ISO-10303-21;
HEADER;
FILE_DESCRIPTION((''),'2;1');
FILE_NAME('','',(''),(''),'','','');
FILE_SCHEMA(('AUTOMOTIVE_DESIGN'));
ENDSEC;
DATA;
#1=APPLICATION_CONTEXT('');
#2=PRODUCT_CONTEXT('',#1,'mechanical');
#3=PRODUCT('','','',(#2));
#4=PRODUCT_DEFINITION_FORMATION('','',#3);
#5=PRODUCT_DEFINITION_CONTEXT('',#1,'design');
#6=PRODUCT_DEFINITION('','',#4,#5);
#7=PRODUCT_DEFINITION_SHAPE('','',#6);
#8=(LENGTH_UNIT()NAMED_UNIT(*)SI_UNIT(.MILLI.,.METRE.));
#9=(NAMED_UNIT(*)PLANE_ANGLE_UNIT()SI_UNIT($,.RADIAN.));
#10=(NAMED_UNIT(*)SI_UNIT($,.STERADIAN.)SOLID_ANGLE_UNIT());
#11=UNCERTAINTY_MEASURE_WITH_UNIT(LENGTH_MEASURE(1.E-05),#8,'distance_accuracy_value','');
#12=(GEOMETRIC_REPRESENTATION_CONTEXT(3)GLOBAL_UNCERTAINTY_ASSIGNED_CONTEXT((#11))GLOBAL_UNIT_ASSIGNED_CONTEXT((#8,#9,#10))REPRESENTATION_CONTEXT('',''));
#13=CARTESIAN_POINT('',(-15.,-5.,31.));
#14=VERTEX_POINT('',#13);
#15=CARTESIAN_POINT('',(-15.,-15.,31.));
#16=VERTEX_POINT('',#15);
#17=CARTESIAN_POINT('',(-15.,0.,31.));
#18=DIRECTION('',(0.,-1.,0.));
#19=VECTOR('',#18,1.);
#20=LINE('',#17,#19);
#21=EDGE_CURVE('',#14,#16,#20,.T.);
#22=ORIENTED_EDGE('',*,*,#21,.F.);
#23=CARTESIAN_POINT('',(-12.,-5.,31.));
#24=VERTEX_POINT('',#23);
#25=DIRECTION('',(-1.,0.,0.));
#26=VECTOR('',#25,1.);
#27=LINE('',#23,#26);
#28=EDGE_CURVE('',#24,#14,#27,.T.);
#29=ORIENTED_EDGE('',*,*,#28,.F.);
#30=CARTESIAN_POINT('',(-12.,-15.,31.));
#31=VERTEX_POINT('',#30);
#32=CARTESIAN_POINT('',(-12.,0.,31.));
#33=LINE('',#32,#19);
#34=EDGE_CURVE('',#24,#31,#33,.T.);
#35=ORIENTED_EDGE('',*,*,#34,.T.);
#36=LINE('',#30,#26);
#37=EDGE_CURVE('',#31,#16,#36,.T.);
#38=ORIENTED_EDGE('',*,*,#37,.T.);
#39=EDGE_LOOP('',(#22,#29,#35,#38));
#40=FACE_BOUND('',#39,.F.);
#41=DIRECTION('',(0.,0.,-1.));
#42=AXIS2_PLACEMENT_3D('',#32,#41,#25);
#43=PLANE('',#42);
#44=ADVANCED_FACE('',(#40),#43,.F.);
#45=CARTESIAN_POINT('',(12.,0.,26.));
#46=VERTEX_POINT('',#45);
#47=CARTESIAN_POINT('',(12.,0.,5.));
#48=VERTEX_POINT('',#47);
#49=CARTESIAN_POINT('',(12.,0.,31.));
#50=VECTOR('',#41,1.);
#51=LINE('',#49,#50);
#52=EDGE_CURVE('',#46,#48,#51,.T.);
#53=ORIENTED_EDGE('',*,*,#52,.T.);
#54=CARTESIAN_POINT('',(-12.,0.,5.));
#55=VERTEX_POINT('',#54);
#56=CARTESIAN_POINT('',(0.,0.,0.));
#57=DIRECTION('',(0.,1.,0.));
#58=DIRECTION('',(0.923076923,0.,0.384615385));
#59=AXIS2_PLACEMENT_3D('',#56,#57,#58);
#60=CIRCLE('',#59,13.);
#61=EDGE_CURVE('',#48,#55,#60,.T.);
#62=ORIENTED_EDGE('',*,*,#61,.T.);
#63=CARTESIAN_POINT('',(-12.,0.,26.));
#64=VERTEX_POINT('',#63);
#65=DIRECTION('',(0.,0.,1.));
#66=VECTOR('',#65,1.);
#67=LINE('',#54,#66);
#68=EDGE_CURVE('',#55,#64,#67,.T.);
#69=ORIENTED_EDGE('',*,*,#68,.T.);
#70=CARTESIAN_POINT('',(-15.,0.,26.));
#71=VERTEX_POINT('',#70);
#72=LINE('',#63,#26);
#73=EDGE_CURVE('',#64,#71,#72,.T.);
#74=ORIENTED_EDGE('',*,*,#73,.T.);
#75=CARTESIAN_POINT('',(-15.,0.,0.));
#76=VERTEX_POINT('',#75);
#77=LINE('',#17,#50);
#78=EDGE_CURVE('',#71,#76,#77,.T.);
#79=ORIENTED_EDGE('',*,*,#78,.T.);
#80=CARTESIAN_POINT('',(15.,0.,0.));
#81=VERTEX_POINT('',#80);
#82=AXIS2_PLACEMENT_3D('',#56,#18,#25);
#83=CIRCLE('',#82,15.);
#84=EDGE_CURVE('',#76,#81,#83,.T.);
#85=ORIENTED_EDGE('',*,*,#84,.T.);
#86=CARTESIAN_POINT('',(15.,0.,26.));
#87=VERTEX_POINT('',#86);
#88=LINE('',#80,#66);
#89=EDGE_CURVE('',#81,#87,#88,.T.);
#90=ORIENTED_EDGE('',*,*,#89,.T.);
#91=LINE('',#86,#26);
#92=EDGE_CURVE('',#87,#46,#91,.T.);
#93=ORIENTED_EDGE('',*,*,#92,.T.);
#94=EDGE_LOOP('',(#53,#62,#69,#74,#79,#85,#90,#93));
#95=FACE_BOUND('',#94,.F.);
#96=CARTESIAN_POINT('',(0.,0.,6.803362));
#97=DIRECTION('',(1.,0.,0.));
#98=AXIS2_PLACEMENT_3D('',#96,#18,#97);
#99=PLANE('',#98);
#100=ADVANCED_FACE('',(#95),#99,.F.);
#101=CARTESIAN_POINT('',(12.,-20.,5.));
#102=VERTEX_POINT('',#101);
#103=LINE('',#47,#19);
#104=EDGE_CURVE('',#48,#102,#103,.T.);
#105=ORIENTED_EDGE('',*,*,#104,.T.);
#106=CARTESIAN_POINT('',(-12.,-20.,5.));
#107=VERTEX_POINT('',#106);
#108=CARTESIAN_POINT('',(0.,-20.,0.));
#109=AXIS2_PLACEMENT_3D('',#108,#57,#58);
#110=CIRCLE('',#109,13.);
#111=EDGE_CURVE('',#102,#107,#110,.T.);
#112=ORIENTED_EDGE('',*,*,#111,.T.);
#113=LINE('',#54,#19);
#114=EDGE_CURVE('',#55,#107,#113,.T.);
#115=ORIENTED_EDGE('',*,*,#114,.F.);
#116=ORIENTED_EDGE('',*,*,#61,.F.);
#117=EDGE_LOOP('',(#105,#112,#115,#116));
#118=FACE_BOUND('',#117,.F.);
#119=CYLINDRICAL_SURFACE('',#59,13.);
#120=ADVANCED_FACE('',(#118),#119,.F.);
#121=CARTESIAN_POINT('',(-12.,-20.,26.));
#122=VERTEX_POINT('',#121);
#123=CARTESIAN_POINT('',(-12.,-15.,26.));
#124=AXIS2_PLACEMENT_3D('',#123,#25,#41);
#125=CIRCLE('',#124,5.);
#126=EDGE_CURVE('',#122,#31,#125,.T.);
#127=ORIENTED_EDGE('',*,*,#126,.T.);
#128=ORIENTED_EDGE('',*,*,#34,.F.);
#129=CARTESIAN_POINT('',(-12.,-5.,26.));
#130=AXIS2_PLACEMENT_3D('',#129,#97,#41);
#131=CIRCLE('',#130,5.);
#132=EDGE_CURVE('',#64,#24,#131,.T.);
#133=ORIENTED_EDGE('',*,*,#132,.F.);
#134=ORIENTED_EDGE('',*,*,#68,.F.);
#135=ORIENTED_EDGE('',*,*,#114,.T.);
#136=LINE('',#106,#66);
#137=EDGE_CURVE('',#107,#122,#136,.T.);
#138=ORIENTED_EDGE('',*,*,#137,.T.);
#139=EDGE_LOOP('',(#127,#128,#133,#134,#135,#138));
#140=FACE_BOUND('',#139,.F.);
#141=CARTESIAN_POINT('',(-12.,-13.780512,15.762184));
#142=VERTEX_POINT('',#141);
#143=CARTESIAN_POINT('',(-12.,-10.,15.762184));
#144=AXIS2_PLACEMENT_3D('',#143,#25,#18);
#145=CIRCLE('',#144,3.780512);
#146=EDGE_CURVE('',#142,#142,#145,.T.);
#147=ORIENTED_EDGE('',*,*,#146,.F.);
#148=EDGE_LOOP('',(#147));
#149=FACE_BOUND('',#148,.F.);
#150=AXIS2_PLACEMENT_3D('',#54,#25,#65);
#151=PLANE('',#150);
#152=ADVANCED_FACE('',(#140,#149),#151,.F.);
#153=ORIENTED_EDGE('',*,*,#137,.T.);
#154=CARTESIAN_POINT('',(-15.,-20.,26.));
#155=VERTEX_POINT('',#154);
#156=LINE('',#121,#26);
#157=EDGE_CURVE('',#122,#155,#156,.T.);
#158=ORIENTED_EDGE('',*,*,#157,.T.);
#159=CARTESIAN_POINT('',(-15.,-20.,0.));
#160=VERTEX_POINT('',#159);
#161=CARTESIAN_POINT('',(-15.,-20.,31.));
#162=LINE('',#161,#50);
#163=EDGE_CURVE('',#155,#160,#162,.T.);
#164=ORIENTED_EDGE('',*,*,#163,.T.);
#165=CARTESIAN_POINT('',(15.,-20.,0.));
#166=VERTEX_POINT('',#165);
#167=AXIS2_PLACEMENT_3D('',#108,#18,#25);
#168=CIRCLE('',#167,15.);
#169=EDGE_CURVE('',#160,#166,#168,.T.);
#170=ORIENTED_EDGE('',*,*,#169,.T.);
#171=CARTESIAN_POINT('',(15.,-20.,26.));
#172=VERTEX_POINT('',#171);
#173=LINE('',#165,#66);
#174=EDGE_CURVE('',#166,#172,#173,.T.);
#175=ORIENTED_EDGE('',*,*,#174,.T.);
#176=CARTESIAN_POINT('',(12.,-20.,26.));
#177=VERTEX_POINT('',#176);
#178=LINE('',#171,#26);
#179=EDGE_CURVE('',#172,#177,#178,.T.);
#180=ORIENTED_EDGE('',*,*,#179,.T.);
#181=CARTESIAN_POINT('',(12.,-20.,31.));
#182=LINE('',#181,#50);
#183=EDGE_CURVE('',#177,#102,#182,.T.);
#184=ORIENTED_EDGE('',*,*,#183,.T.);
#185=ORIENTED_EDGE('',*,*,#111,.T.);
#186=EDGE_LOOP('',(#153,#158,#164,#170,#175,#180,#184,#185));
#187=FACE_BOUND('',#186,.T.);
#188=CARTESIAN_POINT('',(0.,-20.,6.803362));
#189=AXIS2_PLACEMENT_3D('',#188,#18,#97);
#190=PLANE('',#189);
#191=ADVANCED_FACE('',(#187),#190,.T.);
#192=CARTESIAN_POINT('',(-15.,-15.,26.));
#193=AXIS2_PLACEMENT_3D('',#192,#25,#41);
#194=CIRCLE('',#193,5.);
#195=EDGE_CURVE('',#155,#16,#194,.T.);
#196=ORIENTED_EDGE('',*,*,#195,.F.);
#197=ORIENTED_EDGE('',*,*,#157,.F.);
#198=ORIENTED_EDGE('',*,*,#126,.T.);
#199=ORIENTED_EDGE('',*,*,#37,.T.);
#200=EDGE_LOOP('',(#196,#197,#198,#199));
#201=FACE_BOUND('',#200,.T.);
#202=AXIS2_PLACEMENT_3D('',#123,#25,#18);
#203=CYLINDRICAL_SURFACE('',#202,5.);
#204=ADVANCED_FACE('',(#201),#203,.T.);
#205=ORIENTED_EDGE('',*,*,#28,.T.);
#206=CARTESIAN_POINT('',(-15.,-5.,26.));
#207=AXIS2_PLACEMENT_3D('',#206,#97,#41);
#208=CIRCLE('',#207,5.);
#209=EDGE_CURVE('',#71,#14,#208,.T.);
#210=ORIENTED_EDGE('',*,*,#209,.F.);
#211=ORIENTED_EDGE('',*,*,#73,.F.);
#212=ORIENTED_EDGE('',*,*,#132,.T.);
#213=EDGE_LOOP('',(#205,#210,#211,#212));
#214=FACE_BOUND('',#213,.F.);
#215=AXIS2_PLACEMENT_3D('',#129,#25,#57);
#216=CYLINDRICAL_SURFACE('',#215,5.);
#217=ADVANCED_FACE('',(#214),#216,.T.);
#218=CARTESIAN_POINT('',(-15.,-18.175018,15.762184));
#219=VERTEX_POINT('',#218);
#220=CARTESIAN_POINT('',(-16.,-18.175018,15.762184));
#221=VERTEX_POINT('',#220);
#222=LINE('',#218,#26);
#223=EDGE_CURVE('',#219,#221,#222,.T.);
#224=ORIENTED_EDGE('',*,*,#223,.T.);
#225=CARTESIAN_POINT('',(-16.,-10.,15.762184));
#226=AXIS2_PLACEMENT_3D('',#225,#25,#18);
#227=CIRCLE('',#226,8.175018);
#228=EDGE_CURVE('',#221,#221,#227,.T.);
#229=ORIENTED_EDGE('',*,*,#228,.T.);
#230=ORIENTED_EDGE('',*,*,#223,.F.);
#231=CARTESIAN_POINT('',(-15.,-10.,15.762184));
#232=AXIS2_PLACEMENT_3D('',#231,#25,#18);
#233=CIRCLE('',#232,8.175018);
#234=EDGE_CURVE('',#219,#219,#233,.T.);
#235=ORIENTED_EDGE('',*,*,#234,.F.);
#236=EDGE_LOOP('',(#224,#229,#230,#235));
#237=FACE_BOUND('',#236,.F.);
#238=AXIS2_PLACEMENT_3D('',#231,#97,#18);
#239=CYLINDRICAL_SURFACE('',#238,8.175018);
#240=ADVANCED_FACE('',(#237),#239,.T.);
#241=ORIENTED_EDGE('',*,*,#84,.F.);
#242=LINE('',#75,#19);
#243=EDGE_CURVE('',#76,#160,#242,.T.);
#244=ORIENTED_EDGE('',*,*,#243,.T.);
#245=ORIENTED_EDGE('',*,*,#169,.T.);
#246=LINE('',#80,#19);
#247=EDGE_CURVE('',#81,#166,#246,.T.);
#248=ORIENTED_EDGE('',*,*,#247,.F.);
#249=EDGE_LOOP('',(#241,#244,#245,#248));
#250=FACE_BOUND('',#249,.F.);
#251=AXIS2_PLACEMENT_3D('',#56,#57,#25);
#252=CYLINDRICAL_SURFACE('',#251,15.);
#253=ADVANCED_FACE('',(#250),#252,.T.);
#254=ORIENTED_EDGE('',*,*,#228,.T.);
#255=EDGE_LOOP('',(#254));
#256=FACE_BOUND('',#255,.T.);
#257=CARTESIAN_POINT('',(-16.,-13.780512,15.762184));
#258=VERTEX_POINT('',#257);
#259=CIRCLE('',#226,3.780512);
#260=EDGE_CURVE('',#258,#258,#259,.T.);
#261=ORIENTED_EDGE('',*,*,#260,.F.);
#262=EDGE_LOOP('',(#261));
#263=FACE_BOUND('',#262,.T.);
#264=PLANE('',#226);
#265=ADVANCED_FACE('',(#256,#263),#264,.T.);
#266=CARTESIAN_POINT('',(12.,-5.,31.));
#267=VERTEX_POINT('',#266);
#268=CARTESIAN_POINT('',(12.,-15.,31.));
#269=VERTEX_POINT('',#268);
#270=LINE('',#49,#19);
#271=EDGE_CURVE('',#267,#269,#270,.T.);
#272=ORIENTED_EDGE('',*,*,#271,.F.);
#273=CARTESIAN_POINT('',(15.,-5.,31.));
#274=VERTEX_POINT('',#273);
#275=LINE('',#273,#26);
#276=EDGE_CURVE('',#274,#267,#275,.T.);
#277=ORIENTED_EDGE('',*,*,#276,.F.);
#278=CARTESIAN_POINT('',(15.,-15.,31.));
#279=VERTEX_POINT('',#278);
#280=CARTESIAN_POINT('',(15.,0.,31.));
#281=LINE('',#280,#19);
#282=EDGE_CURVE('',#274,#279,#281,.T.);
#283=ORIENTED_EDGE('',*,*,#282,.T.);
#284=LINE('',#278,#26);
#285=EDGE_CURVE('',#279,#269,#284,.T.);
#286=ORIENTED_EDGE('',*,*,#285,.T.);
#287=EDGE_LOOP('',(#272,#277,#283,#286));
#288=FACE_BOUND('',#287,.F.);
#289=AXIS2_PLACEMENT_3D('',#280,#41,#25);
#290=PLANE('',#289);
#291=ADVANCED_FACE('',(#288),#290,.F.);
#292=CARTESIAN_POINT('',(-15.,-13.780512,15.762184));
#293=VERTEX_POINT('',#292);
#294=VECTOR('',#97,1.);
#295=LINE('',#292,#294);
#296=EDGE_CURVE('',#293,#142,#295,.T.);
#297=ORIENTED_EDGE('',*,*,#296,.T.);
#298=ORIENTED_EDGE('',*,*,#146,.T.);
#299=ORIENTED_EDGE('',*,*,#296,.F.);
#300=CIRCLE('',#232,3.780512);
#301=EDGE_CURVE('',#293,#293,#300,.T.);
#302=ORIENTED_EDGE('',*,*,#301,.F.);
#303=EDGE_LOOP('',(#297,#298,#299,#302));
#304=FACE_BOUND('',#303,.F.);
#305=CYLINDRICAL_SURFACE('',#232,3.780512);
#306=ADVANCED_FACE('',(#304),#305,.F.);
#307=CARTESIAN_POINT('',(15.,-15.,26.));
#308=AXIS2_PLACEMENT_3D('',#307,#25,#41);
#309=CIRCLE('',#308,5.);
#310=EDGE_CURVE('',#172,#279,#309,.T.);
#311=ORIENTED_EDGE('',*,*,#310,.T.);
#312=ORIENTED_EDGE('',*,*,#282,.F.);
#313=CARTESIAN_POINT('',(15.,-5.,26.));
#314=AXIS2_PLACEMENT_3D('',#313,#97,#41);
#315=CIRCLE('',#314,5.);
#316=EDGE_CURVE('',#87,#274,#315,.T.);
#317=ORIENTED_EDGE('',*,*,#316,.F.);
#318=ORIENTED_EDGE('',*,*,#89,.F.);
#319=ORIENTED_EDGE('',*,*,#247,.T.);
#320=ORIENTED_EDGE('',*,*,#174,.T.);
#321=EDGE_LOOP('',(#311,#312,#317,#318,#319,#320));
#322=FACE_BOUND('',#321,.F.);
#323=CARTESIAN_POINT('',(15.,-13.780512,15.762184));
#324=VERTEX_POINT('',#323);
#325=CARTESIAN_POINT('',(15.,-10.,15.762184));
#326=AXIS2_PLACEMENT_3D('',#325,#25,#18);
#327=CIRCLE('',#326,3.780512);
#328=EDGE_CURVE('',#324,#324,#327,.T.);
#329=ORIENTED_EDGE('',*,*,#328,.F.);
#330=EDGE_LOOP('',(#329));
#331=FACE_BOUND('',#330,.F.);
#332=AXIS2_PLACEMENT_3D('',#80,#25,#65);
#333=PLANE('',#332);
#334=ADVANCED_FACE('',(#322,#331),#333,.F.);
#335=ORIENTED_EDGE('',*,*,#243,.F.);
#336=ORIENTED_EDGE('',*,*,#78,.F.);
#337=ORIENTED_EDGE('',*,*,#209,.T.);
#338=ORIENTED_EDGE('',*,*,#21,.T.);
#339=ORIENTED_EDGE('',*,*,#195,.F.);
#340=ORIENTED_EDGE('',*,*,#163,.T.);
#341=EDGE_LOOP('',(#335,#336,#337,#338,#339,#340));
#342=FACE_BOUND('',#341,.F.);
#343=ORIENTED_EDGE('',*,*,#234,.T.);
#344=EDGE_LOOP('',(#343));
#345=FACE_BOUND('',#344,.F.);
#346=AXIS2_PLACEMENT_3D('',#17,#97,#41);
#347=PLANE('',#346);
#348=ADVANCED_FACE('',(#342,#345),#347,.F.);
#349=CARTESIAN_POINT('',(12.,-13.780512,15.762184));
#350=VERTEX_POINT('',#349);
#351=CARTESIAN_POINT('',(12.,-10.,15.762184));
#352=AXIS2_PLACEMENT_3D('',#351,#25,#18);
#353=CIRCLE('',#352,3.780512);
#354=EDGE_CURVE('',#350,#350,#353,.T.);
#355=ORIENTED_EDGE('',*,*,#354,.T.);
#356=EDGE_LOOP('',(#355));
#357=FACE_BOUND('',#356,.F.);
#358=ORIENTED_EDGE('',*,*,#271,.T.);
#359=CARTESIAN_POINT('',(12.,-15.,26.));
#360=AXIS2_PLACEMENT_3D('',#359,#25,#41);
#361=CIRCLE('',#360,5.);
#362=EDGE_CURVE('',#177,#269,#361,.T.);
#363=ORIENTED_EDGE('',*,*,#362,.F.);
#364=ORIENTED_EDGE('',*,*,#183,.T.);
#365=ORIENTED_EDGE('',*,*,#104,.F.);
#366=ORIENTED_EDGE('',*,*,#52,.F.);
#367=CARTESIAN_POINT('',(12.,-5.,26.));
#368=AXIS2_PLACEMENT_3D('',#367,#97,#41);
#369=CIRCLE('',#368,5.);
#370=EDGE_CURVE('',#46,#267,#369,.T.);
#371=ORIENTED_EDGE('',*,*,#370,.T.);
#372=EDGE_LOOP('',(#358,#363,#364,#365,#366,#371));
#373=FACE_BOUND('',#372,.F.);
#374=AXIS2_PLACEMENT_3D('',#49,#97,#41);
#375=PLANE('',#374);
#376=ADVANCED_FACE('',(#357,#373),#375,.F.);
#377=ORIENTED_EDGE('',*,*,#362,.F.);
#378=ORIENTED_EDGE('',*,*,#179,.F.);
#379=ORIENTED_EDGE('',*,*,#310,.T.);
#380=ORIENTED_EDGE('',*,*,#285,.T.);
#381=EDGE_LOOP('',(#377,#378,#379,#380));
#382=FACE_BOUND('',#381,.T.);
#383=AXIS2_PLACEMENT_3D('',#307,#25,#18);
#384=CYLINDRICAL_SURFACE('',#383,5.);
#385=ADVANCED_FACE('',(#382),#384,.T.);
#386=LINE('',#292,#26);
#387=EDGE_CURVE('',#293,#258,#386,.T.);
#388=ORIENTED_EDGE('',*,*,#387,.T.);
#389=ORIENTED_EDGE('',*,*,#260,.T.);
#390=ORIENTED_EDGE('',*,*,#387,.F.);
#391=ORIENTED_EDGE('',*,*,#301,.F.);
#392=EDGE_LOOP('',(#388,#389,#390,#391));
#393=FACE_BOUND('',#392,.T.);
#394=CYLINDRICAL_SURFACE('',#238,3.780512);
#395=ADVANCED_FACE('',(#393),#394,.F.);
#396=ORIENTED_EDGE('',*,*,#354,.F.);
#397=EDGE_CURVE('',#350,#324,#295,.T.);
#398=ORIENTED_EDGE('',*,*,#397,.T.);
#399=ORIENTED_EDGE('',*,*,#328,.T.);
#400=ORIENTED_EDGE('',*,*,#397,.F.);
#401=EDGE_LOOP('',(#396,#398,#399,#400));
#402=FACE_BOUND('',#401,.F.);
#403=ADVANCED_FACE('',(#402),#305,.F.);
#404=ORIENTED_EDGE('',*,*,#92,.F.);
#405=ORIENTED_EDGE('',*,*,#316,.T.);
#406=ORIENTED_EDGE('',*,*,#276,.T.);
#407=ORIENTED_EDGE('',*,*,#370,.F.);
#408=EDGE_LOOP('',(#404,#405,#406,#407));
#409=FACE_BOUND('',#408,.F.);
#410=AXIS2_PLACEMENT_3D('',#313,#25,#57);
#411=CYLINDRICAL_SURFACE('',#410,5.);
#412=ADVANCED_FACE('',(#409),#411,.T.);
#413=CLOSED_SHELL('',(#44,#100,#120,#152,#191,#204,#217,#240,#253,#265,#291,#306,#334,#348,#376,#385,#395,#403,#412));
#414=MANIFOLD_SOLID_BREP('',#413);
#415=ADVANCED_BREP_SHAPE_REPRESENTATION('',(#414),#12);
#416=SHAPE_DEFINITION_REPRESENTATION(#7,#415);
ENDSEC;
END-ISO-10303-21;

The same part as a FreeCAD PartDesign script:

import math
import FreeCAD as App
import Part
import Sketcher

V = App.Vector


def edges_at(feature, points):
    """Names of the edges that pass closest to the given points."""
    edges = feature.Shape.Edges
    near = lambda p: min(range(len(edges)), key=lambda i: edges[i].distToShape(Part.Vertex(*p))[0])
    return sorted({f"Edge{near(p) + 1}" for p in points})

doc = App.newDocument("Part")
body = doc.addObject("PartDesign::Body", "Body")

# Sketch on XZ plane
sketch1 = body.newObject("Sketcher::SketchObject", "Sketch")
sketch1.AttachmentSupport = (doc.getObject("XZ_Plane"), [""])
sketch1.MapMode = "FlatFace"
sketch1.addGeometry(Part.ArcOfCircle(Part.Circle(V(0, 0, 0), V(0, 0, 1), 13), math.radians(157.380135), math.radians(382.619865)), False)
sketch1.addGeometry(Part.LineSegment(V(-12, 5, 0), V(-12, 31, 0)), False)
sketch1.addGeometry(Part.LineSegment(V(-12, 31, 0), V(-15, 31, 0)), False)
sketch1.addGeometry(Part.LineSegment(V(-15, 31, 0), V(-15, 0, 0)), False)
sketch1.addGeometry(Part.ArcOfCircle(Part.Circle(V(0, 0, 0), V(0, 0, 1), 15), math.radians(180), math.radians(360)), False)
sketch1.addGeometry(Part.LineSegment(V(15, 0, 0), V(15, 31, 0)), False)
sketch1.addGeometry(Part.LineSegment(V(15, 31, 0), V(12, 31, 0)), False)
sketch1.addGeometry(Part.LineSegment(V(12, 31, 0), V(12, 5, 0)), False)
sketch1.addConstraint(Sketcher.Constraint("Coincident", 0, 1, 1, 1))
sketch1.addConstraint(Sketcher.Constraint("Coincident", 1, 2, 2, 1))
sketch1.addConstraint(Sketcher.Constraint("Coincident", 2, 2, 3, 1))
sketch1.addConstraint(Sketcher.Constraint("Tangent", 3, 2, 4, 1))
sketch1.addConstraint(Sketcher.Constraint("Tangent", 4, 2, 5, 1))
sketch1.addConstraint(Sketcher.Constraint("Coincident", 5, 2, 6, 1))
sketch1.addConstraint(Sketcher.Constraint("Coincident", 6, 2, 7, 1))
sketch1.addConstraint(Sketcher.Constraint("Coincident", 7, 2, 0, 2))
sketch1.addConstraint(Sketcher.Constraint("Vertical", 1))
sketch1.addConstraint(Sketcher.Constraint("Horizontal", 2))
sketch1.addConstraint(Sketcher.Constraint("Vertical", 3))
sketch1.addConstraint(Sketcher.Constraint("Vertical", 5))
sketch1.addConstraint(Sketcher.Constraint("Horizontal", 6))
sketch1.addConstraint(Sketcher.Constraint("Vertical", 7))
sketch1.addConstraint(Sketcher.Constraint("Coincident", 0, 3, -1, 1))
sketch1.addConstraint(Sketcher.Constraint("Coincident", 4, 3, -1, 1))
sketch1.addConstraint(Sketcher.Constraint("Symmetric", 1, 2, 6, 2, -2))
sketch1.addConstraint(Sketcher.Constraint("Radius", 0, 13.0))
sketch1.addConstraint(Sketcher.Constraint("Radius", 4, 15.0))
sketch1.addConstraint(Sketcher.Constraint("DistanceX", 2, 2, 2, 1, 3.0))
sketch1.addConstraint(Sketcher.Constraint("DistanceY", 1, 1, 1, 2, 26.0))
pad1 = body.newObject("PartDesign::Pad", "Pad")
pad1.Profile = sketch1
pad1.Length = 20

# Sketch on YZ plane
sketch2 = body.newObject("Sketcher::SketchObject", "Sketch001")
sketch2.AttachmentSupport = (doc.getObject("YZ_Plane"), [""])
sketch2.MapMode = "FlatFace"
sketch2.AttachmentOffset = App.Placement(V(0, 0, -15), App.Rotation())
sketch2.addGeometry(Part.Circle(V(-10, 15.762184, 0), V(0, 0, 1), 8.175018), False)
sketch2.addGeometry(Part.Circle(V(-10, 15.762184, 0), V(0, 0, 1), 3.780512), False)
sketch2.addConstraint(Sketcher.Constraint("Coincident", 1, 3, 0, 3))
sketch2.addConstraint(Sketcher.Constraint("DistanceX", 0, 3, -1, 1, 10.0))
sketch2.addConstraint(Sketcher.Constraint("Diameter", 0, 16.350036))
sketch2.addConstraint(Sketcher.Constraint("Diameter", 1, 7.561024))
sketch2.addConstraint(Sketcher.Constraint("DistanceY", -1, 1, 0, 3, 15.762184))
pad2 = body.newObject("PartDesign::Pad", "Pad001")
pad2.Profile = sketch2
pad2.Length = 1
pad2.Reversed = True

# Sketch on YZ plane
sketch3 = body.newObject("Sketcher::SketchObject", "Sketch002")
sketch3.AttachmentSupport = (doc.getObject("YZ_Plane"), [""])
sketch3.MapMode = "FlatFace"
sketch3.AttachmentOffset = App.Placement(V(0, 0, -15), App.Rotation())
sketch3.addGeometry(Part.Circle(V(-10, 15.762184, 0), V(0, 0, 1), 3.780512), False)
sketch3.addConstraint(Sketcher.Constraint("DistanceX", 0, 3, -1, 1, 10.0))
sketch3.addConstraint(Sketcher.Constraint("Diameter", 0, 7.561024))
sketch3.addConstraint(Sketcher.Constraint("DistanceY", -1, 1, 0, 3, 15.762184))
pocket1 = body.newObject("PartDesign::Pocket", "Pocket")
pocket1.Profile = sketch3
pocket1.Length = 47.6
pocket1.Reversed = True
doc.recompute()

fillet = body.newObject("PartDesign::Fillet", "Fillet")
fillet.Base = (pocket1, edges_at(pocket1, [
    (-13.5, -20, 31),
    (-13.5, 0, 31),
    (13.5, -20, 31),
    (13.5, 0, 31),
]))
fillet.Radius = 5

doc.recompute()
